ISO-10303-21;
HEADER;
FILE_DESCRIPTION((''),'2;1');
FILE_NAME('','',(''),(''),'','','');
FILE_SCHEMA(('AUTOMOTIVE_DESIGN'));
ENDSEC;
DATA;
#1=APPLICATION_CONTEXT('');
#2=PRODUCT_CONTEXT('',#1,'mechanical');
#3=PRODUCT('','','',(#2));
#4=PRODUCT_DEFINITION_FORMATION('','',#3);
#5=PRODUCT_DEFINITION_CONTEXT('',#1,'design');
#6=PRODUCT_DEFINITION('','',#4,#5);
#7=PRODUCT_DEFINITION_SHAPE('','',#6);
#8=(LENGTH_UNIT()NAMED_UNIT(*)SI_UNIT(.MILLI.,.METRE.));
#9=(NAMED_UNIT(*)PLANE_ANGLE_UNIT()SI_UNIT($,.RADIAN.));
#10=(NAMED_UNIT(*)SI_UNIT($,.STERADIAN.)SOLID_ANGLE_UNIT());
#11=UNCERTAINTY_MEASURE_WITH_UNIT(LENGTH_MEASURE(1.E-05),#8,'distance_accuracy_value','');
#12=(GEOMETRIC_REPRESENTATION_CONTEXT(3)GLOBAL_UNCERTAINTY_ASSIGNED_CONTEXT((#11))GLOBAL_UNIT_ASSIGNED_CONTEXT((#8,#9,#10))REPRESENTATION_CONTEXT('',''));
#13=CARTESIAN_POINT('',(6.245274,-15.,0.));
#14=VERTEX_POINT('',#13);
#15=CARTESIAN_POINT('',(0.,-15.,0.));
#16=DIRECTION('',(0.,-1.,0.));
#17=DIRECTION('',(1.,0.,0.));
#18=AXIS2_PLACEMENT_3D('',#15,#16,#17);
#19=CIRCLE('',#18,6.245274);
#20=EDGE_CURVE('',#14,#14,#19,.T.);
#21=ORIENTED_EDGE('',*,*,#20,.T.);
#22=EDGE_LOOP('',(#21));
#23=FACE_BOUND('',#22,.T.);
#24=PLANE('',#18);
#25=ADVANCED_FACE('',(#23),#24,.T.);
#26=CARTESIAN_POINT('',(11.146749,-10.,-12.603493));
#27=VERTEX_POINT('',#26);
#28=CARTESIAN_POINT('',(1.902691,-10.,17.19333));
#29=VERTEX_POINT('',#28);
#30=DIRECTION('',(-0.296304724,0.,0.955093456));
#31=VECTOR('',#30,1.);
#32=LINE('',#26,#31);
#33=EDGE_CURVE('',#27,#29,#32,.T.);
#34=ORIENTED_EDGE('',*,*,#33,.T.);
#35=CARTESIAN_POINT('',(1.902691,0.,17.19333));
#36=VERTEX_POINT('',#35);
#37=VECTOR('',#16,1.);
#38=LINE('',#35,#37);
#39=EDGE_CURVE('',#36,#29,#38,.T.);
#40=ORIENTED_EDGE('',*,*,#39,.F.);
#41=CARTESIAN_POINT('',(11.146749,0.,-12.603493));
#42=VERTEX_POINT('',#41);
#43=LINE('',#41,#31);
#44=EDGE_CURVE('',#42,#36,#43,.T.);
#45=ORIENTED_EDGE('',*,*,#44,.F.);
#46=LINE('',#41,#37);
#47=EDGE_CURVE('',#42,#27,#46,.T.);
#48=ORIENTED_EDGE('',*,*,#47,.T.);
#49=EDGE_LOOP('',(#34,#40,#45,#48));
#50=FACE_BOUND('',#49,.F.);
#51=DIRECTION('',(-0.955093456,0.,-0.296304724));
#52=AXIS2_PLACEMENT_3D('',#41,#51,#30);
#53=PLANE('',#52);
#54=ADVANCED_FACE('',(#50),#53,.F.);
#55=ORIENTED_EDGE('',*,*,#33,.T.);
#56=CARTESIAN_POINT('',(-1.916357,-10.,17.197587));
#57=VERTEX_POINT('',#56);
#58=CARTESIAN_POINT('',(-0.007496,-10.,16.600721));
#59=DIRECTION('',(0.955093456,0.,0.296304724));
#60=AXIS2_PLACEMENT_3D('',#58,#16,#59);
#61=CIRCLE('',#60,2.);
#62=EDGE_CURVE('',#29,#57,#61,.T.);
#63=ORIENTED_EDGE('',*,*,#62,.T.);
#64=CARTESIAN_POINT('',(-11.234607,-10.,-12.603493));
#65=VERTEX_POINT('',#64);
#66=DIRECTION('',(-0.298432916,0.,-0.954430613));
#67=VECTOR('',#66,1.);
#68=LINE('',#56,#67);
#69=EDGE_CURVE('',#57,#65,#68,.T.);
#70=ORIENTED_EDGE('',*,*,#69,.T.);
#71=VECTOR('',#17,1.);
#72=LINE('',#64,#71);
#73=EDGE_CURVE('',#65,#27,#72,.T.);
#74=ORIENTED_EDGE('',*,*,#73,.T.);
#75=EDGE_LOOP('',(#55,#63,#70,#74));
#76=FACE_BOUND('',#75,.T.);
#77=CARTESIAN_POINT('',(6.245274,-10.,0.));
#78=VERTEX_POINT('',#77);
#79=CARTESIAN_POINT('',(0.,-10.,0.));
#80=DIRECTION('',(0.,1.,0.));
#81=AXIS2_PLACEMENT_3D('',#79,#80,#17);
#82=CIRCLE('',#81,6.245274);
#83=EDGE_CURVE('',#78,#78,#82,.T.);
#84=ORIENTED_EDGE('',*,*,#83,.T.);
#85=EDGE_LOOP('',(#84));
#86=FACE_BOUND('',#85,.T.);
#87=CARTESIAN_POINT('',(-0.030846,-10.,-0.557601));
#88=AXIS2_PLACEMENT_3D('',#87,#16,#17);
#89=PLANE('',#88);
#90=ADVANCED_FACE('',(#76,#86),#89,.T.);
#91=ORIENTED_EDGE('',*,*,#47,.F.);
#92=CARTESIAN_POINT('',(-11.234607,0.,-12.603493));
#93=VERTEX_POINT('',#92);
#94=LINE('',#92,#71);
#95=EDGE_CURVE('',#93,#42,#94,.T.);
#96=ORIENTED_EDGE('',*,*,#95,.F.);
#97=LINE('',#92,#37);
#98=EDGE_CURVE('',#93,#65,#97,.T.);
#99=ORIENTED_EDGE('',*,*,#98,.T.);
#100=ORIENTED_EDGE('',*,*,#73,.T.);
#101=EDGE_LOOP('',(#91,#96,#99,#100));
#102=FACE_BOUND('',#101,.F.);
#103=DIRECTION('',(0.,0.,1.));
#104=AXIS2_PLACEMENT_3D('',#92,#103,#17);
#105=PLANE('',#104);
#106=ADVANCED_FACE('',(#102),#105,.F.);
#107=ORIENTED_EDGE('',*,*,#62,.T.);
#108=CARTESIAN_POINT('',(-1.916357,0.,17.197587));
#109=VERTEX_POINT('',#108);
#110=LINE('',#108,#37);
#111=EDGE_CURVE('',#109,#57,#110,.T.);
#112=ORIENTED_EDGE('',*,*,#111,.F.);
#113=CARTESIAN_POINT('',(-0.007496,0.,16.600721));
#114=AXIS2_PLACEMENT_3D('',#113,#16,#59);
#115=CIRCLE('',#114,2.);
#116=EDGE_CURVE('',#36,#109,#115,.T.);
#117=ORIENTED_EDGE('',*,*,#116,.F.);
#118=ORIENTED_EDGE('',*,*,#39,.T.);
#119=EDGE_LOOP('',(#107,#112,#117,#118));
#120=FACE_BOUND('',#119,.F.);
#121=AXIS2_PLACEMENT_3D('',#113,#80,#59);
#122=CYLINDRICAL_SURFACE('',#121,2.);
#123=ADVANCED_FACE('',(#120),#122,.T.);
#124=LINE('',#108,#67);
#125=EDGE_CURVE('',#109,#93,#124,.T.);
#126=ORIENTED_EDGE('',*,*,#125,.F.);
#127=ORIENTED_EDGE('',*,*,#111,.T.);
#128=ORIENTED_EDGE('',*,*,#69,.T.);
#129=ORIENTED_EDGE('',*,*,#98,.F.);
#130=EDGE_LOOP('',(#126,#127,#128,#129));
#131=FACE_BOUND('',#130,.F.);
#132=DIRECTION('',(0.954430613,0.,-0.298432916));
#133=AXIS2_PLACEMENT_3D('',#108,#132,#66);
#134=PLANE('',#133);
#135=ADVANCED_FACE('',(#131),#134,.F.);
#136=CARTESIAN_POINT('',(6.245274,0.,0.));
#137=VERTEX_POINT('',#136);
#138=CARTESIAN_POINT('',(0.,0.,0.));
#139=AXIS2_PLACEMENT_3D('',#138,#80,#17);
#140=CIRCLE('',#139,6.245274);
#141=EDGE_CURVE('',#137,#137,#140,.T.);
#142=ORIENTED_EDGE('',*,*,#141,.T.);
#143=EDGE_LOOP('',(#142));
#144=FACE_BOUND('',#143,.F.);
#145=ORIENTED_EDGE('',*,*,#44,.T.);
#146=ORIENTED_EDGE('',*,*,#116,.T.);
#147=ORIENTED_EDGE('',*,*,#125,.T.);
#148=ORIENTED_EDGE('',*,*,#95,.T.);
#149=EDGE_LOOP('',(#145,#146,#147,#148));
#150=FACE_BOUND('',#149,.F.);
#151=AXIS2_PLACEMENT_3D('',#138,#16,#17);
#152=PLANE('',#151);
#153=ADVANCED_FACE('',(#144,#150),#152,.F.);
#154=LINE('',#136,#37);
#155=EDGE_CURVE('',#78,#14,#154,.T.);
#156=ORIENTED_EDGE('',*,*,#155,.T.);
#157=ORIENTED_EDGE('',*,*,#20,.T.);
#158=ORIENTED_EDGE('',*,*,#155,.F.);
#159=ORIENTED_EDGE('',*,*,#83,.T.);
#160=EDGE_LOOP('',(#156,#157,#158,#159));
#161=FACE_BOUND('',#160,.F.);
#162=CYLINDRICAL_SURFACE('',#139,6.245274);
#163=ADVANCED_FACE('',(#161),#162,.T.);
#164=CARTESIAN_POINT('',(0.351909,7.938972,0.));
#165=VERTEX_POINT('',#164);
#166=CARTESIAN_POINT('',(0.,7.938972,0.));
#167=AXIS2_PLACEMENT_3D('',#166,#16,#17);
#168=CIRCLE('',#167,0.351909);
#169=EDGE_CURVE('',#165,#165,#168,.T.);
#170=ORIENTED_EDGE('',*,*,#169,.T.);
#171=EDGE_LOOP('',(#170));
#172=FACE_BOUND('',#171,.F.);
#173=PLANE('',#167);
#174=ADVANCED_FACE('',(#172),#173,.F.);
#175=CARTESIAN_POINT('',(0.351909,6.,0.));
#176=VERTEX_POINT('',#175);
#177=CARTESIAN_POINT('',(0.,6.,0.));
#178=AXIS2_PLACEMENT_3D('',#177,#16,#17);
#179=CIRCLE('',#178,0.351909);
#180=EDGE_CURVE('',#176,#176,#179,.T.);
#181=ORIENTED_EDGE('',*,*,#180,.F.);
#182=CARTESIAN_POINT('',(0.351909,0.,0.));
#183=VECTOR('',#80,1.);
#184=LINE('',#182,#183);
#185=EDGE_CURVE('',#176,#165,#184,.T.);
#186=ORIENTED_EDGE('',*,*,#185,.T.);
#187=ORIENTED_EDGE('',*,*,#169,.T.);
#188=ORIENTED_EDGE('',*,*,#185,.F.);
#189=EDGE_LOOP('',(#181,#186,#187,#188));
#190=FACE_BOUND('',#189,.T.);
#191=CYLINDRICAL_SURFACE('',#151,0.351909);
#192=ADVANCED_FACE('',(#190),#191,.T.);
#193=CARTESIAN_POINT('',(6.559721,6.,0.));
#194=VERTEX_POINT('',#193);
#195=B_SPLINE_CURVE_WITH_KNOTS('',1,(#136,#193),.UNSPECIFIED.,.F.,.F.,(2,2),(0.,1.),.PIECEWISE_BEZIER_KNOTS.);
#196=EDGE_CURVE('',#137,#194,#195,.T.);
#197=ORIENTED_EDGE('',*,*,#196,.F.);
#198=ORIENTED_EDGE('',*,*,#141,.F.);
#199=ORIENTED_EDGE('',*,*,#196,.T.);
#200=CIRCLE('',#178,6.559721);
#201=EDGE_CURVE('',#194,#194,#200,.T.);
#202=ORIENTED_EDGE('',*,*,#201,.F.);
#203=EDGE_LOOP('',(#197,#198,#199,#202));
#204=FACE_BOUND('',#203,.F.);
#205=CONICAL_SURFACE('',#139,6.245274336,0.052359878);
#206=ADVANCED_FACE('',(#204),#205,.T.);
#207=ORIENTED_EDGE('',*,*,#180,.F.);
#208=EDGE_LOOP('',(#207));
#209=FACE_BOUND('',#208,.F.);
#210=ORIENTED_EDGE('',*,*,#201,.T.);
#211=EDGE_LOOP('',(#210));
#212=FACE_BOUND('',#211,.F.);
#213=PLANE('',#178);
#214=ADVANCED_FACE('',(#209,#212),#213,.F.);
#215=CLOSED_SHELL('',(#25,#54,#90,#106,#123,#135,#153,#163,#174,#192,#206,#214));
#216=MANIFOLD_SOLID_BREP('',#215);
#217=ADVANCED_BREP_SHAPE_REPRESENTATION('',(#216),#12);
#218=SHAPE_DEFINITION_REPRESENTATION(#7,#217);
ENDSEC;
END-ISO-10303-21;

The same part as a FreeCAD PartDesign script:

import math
import FreeCAD as App
import Part
import Sketcher
Q = App.Units.Quantity

doc = App.newDocument("Part")
body = doc.addObject("PartDesign::Body", "Body")

# Sketch on XZ plane
sketch1 = doc.addObject("Sketcher::SketchObject", "Sketch")
body.addObject(sketch1)
sketch1.AttachmentSupport = (doc.XZ_Plane, [""])
sketch1.MapMode = "FlatFace"
sketch1.addGeometry([
    Part.LineSegment(App.Vector(11.1, -12.6, 0), App.Vector(1.9, 17.2, 0)),
    Part.ArcOfCircle(Part.Circle(App.Vector(0, 16.6, 0), App.Vector(0, 0, 1), 2), math.radians(17), math.radians(163)),
    Part.LineSegment(App.Vector(-1.9, 17.2, 0), App.Vector(-11.2, -12.6, 0)),
    Part.LineSegment(App.Vector(-11.2, -12.6, 0), App.Vector(11.1, -12.6, 0)),
], False)
sketch1.addConstraint([
    Sketcher.Constraint("Tangent", 0, 2, 1, 1),
    Sketcher.Constraint("Tangent", 1, 2, 2, 1),
    Sketcher.Constraint("Coincident", 2, 2, 3, 1),
    Sketcher.Constraint("Coincident", 3, 2, 0, 1),
    Sketcher.Constraint("Horizontal", 3),
    Sketcher.Constraint("Radius", 1, Q("2 mm")),
    Sketcher.Constraint("DistanceX", 2, 2, 0, 2, Q("13.137298 mm")),
    Sketcher.Constraint("Distance", 0, Q("31.197809 mm")),
    Sketcher.Constraint("DistanceX", 3, 1, 3, 2, Q("22.381357 mm")),
    Sketcher.Constraint("DistanceY", -1, 1, 1, 3, Q("16.600721 mm")),
    Sketcher.Constraint("DistanceX", -1, 1, 0, 2, Q("1.902691 mm")),
])
pad1 = doc.addObject("PartDesign::Pad", "Pad")
body.addObject(pad1)
pad1.Profile = sketch1
pad1.Length = 10

# Sketch on XZ plane
sketch2 = doc.addObject("Sketcher::SketchObject", "Sketch001")
body.addObject(sketch2)
sketch2.AttachmentSupport = (doc.XZ_Plane, [""])
sketch2.MapMode = "FlatFace"
sketch2.addGeometry(Part.Circle(App.Vector(0, 0, 0), App.Vector(0, 0, 1), 6), False)
sketch2.addConstraint([
    Sketcher.Constraint("Coincident", 0, 3, -1, 1),
    Sketcher.Constraint("Diameter", 0, Q("12.490549 mm")),
])
pad2 = doc.addObject("PartDesign::Pad", "Pad001")
body.addObject(pad2)
pad2.Profile = sketch2
pad2.Length = 15

# Sketch on XZ plane
sketch3 = doc.addObject("Sketcher::SketchObject", "Sketch002")
body.addObject(sketch3)
sketch3.AttachmentSupport = (doc.XZ_Plane, [""])
sketch3.MapMode = "FlatFace"
sketch3.addGeometry(Part.Circle(App.Vector(0, 0, 0), App.Vector(0, 0, 1), 6), False)
sketch3.addConstraint([
    Sketcher.Constraint("Coincident", 0, 3, -1, 1),
    Sketcher.Constraint("Diameter", 0, Q("12.490549 mm")),
])
pad3 = doc.addObject("PartDesign::Pad", "Pad002")
body.addObject(pad3)
pad3.Profile = sketch3
pad3.Length = 6
pad3.Reversed = True
pad3.TaperAngle = 3

# Sketch on XZ plane
sketch4 = doc.addObject("Sketcher::SketchObject", "Sketch003")
body.addObject(sketch4)
sketch4.AttachmentSupport = (doc.XZ_Plane, [""])
sketch4.MapMode = "FlatFace"
sketch4.addGeometry(Part.Circle(App.Vector(0, 0, 0), App.Vector(0, 0, 1), 0.35), False)
sketch4.addConstraint([
    Sketcher.Constraint("Coincident", 0, 3, -1, 1),
    Sketcher.Constraint("Diameter", 0, Q("0.703817 mm")),
])
pad4 = doc.addObject("PartDesign::Pad", "Pad003")
body.addObject(pad4)
pad4.Profile = sketch4
pad4.Length = 7.938972
pad4.Reversed = True

doc.recompute()
